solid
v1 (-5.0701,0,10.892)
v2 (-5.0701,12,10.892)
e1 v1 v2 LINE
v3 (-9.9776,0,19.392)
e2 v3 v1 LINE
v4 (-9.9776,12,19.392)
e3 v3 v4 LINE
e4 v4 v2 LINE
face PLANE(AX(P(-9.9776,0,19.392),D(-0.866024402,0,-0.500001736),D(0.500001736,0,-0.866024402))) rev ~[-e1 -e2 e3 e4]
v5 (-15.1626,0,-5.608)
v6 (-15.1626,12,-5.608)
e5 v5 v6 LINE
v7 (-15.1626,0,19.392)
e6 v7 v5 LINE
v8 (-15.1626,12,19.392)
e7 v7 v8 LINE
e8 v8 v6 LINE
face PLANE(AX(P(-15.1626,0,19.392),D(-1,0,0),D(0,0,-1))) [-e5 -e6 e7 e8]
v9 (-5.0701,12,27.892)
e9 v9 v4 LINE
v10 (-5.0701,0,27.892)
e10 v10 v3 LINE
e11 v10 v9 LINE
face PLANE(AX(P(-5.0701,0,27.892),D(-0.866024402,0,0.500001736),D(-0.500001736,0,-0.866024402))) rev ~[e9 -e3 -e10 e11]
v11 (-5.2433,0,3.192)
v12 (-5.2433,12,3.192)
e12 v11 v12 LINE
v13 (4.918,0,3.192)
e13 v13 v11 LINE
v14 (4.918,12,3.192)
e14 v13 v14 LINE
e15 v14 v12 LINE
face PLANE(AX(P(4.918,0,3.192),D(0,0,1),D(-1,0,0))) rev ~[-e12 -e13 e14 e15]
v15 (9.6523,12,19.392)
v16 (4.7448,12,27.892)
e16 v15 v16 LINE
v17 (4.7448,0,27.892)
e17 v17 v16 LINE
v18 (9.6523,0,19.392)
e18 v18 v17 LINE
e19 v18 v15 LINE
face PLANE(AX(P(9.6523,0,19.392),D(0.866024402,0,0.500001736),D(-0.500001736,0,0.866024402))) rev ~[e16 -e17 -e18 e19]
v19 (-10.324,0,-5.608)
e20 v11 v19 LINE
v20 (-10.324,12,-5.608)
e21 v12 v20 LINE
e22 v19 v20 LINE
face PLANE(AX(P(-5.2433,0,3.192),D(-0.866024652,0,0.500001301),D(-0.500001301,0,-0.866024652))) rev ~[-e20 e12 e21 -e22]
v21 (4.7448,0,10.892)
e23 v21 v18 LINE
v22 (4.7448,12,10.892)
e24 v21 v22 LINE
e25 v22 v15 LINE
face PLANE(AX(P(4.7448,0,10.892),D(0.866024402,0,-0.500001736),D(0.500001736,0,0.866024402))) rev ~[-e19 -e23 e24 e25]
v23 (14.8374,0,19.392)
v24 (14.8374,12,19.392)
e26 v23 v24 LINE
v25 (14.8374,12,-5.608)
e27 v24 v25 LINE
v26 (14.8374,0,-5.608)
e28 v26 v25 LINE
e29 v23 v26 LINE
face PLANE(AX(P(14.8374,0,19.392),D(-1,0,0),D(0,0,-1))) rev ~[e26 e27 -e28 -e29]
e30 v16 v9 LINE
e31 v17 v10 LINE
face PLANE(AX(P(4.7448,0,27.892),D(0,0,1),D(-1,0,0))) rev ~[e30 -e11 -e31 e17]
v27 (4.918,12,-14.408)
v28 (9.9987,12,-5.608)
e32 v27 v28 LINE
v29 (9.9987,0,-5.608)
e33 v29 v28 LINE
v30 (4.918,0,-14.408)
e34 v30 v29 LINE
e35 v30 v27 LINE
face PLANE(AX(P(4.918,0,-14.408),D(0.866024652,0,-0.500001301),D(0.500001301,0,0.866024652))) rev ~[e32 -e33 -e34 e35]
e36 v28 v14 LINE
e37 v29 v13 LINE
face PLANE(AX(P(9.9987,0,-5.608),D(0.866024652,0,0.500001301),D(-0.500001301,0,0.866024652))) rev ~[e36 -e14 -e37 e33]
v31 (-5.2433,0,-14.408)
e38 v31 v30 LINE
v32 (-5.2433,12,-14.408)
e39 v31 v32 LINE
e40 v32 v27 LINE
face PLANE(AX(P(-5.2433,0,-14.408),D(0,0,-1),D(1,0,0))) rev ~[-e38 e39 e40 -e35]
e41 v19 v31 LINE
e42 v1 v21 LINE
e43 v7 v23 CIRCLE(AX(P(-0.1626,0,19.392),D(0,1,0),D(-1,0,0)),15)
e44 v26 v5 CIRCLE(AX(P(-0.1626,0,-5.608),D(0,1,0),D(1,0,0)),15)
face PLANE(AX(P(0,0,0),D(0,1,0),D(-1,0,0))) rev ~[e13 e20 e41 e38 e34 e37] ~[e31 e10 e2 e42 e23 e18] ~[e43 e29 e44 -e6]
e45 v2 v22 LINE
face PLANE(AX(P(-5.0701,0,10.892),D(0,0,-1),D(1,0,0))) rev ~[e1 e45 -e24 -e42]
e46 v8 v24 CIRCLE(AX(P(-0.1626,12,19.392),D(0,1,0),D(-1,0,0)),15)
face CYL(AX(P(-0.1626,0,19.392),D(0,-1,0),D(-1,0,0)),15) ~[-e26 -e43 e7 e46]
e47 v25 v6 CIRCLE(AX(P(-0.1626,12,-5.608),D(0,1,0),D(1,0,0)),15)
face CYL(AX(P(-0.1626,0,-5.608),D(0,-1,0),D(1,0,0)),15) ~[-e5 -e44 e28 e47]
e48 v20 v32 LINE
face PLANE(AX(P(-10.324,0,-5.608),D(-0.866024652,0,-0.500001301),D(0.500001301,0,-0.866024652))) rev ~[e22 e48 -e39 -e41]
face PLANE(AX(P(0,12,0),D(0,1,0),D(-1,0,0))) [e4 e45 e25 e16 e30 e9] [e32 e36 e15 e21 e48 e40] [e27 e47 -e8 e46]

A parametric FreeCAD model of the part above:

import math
import FreeCAD as App
import Part
import Sketcher
Q = App.Units.Quantity

doc = App.newDocument("Part")
params = doc.addObject("Spreadsheet::Sheet", "Params")
for row, (alias, value) in enumerate([
    ("sketch1_radius", "15 mm"),
    ("sketch1_height", "25 mm"),
    ("pad1_length", "12 mm"),
], start=1):
    params.set(f"A{row}", alias)
    params.set(f"B{row}", "=" + value)
    params.setAlias(f"B{row}", alias)

body = doc.addObject("PartDesign::Body", "Body")

sketch1 = body.newObject("Sketcher::SketchObject", "Sketch")
sketch1.AttachmentSupport = (doc.getObject("XZ_Plane"), [""])
sketch1.MapMode = "FlatFace"
sketch1.addGeometry([
    Part.LineSegment(App.Vector(-15.1626, -5.608, 0), App.Vector(-15.1626, 19.392, 0)),
    Part.ArcOfCircle(Part.Circle(App.Vector(-0.1626, 19.392, 0), App.Vector(0, 0, 1), 15), math.radians(0), math.radians(180)),
    Part.LineSegment(App.Vector(14.8374, 19.392, 0), App.Vector(14.8374, -5.608, 0)),
    Part.ArcOfCircle(Part.Circle(App.Vector(-0.1626, -5.608, 0), App.Vector(0, 0, 1), 15), math.radians(180), math.radians(360)),
    Part.LineSegment(App.Vector(-5.2433, -14.408, 0), App.Vector(4.918, -14.408, 0)),
    Part.LineSegment(App.Vector(4.918, -14.408, 0), App.Vector(9.9987, -5.608, 0)),
    Part.LineSegment(App.Vector(9.9987, -5.608, 0), App.Vector(4.918, 3.192, 0)),
    Part.LineSegment(App.Vector(4.918, 3.192, 0), App.Vector(-5.2433, 3.192, 0)),
    Part.LineSegment(App.Vector(-5.2433, 3.192, 0), App.Vector(-10.324, -5.608, 0)),
    Part.LineSegment(App.Vector(-10.324, -5.608, 0), App.Vector(-5.2433, -14.408, 0)),
    Part.LineSegment(App.Vector(4.7448, 10.892, 0), App.Vector(9.6523, 19.392, 0)),
    Part.LineSegment(App.Vector(9.6523, 19.392, 0), App.Vector(4.7448, 27.892, 0)),
    Part.LineSegment(App.Vector(4.7448, 27.892, 0), App.Vector(-5.0701, 27.892, 0)),
    Part.LineSegment(App.Vector(-5.0701, 27.892, 0), App.Vector(-9.9776, 19.392, 0)),
    Part.LineSegment(App.Vector(-9.9776, 19.392, 0), App.Vector(-5.0701, 10.892, 0)),
    Part.LineSegment(App.Vector(-5.0701, 10.892, 0), App.Vector(4.7448, 10.892, 0)),
], False)
sketch1.addConstraint([
    Sketcher.Constraint("Tangent", 0, 2, 1, 2),
    Sketcher.Constraint("Tangent", 1, 1, 2, 1),
    Sketcher.Constraint("Tangent", 2, 2, 3, 2),
    Sketcher.Constraint("Tangent", 3, 1, 0, 1),
    Sketcher.Constraint("Coincident", 4, 2, 5, 1),
    Sketcher.Constraint("Coincident", 5, 2, 6, 1),
    Sketcher.Constraint("Coincident", 6, 2, 7, 1),
    Sketcher.Constraint("Coincident", 7, 2, 8, 1),
    Sketcher.Constraint("Coincident", 8, 2, 9, 1),
    Sketcher.Constraint("Coincident", 9, 2, 4, 1),
    Sketcher.Constraint("Coincident", 10, 2, 11, 1),
    Sketcher.Constraint("Coincident", 11, 2, 12, 1),
    Sketcher.Constraint("Coincident", 12, 2, 13, 1),
    Sketcher.Constraint("Coincident", 13, 2, 14, 1),
    Sketcher.Constraint("Coincident", 14, 2, 15, 1),
    Sketcher.Constraint("Coincident", 15, 2, 10, 1),
    Sketcher.Constraint("Vertical", 0),
    Sketcher.Constraint("Vertical", 2),
    Sketcher.Constraint("Horizontal", 4),
    Sketcher.Constraint("Horizontal", 7),
    Sketcher.Constraint("Horizontal", 12),
    Sketcher.Constraint("Horizontal", 15),
    Sketcher.Constraint("Parallel", 5, 8),
    Sketcher.Constraint("Parallel", 6, 9),
    Sketcher.Constraint("Parallel", 8, 10),
    Sketcher.Constraint("Parallel", 9, 11),
    Sketcher.Constraint("Parallel", 10, 13),
    Sketcher.Constraint("Parallel", 11, 14),
    Sketcher.Constraint("Horizontal", 3, 1, 5, 2),
    Sketcher.Constraint("Horizontal", 5, 2, 8, 2),
    Sketcher.Constraint("Horizontal", 1, 1, 10, 2),
    Sketcher.Constraint("Horizontal", 10, 2, 13, 2),
    Sketcher.Constraint("Vertical", 4, 2, 6, 2),
    Sketcher.Constraint("Vertical", 7, 2, 9, 2),
    Sketcher.Constraint("Vertical", 12, 2, 14, 2),
    Sketcher.Constraint("Radius", 1, 15.0),
    Sketcher.Constraint("DistanceY", 0, 1, 0, 2, 25.0),
    Sketcher.Constraint("DistanceY", 4, 2, 3, 3, 8.8),
    Sketcher.Constraint("DistanceY", 1, 3, 11, 2, 8.5),
    Sketcher.Constraint("Angle", 5, Q("60 deg")),
    Sketcher.Constraint("DistanceX", 12, 2, 12, 1, 9.815),
    Sketcher.Constraint("DistanceX", 12, 2, -1, 1, 5.07),
    Sketcher.Constraint("DistanceX", 4, 1, 4, 2, 10.1613),
    Sketcher.Constraint("DistanceY", -1, 1, 1, 3, 19.392),
    Sketcher.Constraint("DistanceX", -1, 1, 4, 2, 4.918),
    Sketcher.Constraint("DistanceX", 10, 2, 1, 1, 5.185),
])
sketch1.setExpression("Constraints[35]", "Params.sketch1_radius")
sketch1.setExpression("Constraints[36]", "Params.sketch1_height")
pad1 = body.newObject("PartDesign::Pad", "Pad")
pad1.Profile = sketch1
pad1.setExpression("Length", "Params.pad1_length")
pad1.Reversed = True

doc.recompute()
